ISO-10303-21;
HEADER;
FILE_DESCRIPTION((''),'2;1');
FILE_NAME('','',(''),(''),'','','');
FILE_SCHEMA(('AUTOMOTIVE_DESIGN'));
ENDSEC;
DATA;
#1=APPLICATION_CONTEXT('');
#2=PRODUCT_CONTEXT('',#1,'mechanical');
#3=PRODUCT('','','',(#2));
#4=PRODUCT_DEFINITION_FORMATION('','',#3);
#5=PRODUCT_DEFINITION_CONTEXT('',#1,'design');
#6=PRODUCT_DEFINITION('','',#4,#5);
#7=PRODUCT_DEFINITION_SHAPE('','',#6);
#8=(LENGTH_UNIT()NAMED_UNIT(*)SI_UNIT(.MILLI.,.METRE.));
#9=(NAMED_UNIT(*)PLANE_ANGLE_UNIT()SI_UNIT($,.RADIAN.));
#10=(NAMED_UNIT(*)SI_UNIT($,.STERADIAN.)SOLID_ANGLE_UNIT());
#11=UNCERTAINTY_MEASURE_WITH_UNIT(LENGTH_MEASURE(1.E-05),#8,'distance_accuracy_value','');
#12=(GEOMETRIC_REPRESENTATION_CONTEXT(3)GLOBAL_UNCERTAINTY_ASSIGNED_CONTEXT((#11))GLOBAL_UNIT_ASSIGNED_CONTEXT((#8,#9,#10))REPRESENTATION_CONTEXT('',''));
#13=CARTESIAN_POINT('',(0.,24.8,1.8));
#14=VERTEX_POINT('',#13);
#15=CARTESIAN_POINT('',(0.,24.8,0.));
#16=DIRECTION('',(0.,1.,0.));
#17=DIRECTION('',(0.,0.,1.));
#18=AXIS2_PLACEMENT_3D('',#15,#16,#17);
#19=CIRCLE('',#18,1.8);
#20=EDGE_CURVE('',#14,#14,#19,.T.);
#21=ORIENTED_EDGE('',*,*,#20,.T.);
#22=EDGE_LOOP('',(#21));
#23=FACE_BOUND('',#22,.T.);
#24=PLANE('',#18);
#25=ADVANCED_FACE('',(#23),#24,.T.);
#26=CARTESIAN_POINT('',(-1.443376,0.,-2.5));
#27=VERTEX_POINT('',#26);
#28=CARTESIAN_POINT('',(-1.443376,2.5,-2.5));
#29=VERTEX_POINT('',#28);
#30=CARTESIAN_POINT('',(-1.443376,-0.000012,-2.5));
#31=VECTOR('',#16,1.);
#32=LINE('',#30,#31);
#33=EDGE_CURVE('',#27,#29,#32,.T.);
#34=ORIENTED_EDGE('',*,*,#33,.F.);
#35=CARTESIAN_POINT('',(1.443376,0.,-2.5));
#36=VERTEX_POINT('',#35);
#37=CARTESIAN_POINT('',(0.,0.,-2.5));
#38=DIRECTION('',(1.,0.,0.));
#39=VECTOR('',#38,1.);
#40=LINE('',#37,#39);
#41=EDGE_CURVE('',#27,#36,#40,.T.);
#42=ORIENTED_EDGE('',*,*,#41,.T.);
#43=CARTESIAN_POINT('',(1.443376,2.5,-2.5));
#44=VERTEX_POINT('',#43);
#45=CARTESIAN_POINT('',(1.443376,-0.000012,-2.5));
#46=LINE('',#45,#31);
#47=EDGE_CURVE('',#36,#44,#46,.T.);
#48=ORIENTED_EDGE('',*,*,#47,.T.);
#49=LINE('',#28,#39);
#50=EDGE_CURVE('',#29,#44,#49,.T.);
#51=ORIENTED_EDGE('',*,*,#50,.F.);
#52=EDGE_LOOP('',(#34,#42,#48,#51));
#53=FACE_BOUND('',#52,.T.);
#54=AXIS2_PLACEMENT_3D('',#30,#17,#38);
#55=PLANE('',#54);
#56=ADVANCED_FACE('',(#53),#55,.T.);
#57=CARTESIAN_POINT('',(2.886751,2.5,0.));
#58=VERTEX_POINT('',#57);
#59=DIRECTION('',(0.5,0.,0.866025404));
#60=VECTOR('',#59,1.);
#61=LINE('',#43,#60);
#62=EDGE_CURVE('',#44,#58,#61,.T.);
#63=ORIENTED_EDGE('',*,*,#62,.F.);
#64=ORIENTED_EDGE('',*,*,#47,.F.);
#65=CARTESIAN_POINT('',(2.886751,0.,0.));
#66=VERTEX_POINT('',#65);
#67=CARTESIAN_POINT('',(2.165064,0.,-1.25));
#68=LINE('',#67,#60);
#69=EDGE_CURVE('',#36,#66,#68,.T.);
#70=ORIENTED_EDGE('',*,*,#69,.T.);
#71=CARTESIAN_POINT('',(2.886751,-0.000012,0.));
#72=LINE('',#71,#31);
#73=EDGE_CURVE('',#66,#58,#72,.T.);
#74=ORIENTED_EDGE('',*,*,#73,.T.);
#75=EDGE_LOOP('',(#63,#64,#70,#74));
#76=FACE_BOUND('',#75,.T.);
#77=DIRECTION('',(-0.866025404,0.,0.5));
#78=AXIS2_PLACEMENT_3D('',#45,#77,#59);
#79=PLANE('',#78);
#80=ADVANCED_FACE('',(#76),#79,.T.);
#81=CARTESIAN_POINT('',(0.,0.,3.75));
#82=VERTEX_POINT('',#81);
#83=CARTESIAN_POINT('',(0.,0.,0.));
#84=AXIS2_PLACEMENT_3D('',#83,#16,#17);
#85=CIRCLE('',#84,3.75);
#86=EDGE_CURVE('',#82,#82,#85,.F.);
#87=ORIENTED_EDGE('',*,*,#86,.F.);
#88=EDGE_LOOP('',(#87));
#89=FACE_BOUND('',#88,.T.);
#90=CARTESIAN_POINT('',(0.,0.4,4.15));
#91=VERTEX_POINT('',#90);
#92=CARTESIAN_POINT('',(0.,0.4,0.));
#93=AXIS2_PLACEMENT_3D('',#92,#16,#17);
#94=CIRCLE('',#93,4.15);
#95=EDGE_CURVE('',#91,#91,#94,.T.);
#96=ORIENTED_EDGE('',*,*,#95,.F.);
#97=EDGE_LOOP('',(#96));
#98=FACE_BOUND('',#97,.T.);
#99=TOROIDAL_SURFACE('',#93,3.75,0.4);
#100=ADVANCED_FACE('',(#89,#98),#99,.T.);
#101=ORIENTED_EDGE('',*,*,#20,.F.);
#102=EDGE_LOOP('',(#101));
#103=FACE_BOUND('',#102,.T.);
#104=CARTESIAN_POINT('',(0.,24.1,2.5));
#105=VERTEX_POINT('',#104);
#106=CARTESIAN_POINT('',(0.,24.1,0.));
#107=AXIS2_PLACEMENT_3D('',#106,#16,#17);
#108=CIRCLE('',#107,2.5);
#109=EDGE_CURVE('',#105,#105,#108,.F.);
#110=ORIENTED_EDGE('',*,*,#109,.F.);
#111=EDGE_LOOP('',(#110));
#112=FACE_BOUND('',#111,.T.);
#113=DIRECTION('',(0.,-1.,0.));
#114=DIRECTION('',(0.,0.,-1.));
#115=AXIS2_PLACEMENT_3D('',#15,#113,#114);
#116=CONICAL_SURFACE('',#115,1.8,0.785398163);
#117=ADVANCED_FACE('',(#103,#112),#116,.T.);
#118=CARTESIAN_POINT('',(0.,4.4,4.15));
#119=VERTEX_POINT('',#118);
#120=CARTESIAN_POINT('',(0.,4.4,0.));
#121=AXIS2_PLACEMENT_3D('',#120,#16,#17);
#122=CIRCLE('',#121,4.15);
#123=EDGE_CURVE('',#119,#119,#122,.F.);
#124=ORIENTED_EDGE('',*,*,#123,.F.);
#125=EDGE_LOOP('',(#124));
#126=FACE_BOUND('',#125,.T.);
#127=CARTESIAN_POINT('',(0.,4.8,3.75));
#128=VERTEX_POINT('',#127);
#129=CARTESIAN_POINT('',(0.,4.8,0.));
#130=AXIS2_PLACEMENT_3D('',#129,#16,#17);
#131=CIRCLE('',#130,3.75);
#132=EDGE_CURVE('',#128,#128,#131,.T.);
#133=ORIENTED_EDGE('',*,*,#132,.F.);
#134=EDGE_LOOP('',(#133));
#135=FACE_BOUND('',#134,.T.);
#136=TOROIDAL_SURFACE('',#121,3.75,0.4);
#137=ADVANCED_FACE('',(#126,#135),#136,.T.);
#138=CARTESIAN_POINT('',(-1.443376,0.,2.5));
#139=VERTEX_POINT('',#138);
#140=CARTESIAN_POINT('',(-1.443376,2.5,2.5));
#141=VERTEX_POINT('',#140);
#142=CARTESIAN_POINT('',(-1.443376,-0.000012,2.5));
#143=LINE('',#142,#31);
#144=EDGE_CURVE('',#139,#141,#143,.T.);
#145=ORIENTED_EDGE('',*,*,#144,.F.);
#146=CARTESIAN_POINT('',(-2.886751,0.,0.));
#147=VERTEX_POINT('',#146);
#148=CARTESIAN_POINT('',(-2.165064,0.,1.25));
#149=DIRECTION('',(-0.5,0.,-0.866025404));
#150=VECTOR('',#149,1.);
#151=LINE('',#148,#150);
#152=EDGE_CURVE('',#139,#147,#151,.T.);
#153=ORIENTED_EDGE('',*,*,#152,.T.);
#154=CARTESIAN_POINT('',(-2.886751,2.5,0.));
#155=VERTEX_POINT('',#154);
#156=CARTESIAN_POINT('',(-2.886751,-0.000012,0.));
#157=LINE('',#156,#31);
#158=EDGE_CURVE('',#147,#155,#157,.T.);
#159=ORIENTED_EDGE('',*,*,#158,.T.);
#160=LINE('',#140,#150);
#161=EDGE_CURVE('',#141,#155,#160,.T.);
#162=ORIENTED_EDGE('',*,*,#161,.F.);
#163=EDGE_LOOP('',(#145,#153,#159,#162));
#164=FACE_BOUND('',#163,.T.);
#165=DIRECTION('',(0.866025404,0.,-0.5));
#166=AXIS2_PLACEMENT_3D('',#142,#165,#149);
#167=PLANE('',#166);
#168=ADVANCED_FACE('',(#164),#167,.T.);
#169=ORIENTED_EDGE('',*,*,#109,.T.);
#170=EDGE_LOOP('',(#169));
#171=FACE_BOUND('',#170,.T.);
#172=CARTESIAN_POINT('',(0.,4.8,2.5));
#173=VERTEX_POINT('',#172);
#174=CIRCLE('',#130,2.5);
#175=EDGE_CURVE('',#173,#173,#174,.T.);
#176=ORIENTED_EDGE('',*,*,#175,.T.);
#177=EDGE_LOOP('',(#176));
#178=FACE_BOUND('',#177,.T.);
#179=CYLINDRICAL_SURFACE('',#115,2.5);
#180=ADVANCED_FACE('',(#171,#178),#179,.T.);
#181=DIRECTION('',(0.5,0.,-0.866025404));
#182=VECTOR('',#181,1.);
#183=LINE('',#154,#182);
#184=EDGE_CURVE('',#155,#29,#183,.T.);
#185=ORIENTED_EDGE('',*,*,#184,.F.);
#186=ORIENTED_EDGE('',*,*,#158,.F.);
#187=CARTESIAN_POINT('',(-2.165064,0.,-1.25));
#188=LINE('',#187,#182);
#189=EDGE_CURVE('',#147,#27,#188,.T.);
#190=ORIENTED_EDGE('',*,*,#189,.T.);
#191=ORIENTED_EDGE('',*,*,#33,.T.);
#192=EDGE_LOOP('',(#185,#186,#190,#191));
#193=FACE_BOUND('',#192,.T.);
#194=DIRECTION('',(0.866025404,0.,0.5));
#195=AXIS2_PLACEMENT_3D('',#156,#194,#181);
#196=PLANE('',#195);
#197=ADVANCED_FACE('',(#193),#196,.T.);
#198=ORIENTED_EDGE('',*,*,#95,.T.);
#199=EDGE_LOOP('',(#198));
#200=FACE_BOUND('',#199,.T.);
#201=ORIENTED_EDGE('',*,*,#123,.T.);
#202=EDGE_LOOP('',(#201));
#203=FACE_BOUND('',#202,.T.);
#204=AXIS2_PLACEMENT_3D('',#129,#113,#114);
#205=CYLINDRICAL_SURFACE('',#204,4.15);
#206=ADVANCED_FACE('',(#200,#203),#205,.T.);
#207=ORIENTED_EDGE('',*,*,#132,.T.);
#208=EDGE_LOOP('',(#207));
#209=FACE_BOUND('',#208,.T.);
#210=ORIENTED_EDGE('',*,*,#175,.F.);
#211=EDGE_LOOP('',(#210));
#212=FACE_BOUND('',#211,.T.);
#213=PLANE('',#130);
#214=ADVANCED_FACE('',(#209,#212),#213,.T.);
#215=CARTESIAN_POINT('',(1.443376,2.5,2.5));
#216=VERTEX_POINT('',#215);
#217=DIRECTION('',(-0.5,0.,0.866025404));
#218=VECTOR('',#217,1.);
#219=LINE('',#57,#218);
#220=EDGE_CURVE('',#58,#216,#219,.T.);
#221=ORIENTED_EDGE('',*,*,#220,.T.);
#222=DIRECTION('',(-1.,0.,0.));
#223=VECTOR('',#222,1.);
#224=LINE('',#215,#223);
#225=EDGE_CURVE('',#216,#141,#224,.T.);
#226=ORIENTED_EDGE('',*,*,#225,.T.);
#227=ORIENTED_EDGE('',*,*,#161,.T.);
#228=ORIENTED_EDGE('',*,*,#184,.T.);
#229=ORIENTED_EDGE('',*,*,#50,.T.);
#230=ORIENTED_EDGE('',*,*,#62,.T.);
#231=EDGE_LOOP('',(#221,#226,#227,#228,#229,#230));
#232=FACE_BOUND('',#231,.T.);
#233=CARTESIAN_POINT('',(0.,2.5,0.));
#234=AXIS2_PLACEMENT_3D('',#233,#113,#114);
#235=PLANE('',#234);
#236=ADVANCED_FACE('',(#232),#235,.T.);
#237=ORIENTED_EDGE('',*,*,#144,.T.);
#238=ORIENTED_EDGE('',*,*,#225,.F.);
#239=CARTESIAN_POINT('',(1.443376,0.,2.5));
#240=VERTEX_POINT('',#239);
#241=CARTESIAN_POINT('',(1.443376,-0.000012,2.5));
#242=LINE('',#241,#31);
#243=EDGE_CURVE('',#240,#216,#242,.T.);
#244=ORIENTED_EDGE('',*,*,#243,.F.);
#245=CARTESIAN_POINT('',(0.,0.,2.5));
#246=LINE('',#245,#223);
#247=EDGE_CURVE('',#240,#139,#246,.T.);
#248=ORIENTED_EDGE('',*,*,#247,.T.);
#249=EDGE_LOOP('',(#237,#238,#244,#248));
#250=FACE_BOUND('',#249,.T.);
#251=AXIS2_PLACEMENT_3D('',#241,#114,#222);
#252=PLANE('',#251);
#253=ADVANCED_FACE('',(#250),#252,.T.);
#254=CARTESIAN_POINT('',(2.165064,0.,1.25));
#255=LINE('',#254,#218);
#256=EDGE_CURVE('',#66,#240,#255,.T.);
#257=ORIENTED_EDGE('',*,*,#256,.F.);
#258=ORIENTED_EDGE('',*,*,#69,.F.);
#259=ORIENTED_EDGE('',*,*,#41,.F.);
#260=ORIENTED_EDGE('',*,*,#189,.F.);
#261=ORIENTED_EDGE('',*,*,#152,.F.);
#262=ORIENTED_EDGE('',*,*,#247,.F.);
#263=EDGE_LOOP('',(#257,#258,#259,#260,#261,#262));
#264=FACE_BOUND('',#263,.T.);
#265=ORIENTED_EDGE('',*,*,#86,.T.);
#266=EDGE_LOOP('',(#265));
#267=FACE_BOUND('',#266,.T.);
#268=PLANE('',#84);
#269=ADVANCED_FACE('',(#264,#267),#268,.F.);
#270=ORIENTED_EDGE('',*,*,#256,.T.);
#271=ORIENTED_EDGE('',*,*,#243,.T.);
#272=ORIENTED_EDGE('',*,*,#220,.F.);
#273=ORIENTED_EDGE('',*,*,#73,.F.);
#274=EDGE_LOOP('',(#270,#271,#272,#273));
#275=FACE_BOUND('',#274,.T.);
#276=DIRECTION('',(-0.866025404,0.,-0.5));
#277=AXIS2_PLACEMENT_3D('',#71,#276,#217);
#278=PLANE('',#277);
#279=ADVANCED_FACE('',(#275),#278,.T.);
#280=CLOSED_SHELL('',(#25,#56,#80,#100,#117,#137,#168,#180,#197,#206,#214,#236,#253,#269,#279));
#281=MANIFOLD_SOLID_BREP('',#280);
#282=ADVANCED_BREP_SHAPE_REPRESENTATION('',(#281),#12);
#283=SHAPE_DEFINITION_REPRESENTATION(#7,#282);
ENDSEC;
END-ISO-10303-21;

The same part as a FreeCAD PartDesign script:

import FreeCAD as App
import Part
import Sketcher
Q = App.Units.Quantity


def edges_at(feature, points):
    """Names of the edges that pass closest to the given points."""
    edges = feature.Shape.Edges
    near = lambda p: min(range(len(edges)), key=lambda i: edges[i].distToShape(Part.Vertex(*p))[0])
    return sorted({f"Edge{near(p) + 1}" for p in points})

doc = App.newDocument("Part")
body = doc.addObject("PartDesign::Body", "Body")

# Sketch on XZ plane
sketch1 = body.newObject("Sketcher::SketchObject", "Sketch")
sketch1.AttachmentSupport = (doc.getObject("XZ_Plane"), [""])
sketch1.MapMode = "FlatFace"
sketch1.addGeometry(Part.Circle(App.Vector(0, 0, 0), App.Vector(0, 0, 1), 4.2), False)
sketch1.addConstraint(Sketcher.Constraint("Coincident", 0, 3, -1, 1))
sketch1.addConstraint(Sketcher.Constraint("Diameter", 0, Q("8.3 mm")))
pad1 = body.newObject("PartDesign::Pad", "Pad")
pad1.Profile = sketch1
pad1.Length = 4.8
pad1.Reversed = True

# Sketch on XZ plane
sketch2 = body.newObject("Sketcher::SketchObject", "Sketch001")
sketch2.AttachmentSupport = (doc.getObject("XZ_Plane"), [""])
sketch2.MapMode = "FlatFace"
sketch2.AttachmentOffset = App.Placement(App.Vector(0, 0, -4.8), App.Rotation())
sketch2.addGeometry(Part.Circle(App.Vector(0, 0, 0), App.Vector(0, 0, 1), 2.5), False)
sketch2.addConstraint(Sketcher.Constraint("Coincident", 0, 3, -1, 1))
sketch2.addConstraint(Sketcher.Constraint("Diameter", 0, Q("5 mm")))
pad2 = body.newObject("PartDesign::Pad", "Pad001")
pad2.Profile = sketch2
pad2.Length = 20
pad2.Reversed = True

# Sketch on XZ plane
sketch3 = body.newObject("Sketcher::SketchObject", "Sketch002")
sketch3.AttachmentSupport = (doc.getObject("XZ_Plane"), [""])
sketch3.MapMode = "FlatFace"
sketch3.addGeometry(Part.LineSegment(App.Vector(2.9, 0, 0), App.Vector(1.4, 2.5, 0)), False)
sketch3.addGeometry(Part.LineSegment(App.Vector(1.4, 2.5, 0), App.Vector(-1.4, 2.5, 0)), False)
sketch3.addGeometry(Part.LineSegment(App.Vector(-1.4, 2.5, 0), App.Vector(-2.9, 0, 0)), False)
sketch3.addGeometry(Part.LineSegment(App.Vector(-2.9, 0, 0), App.Vector(-1.4, -2.5, 0)), False)
sketch3.addGeometry(Part.LineSegment(App.Vector(-1.4, -2.5, 0), App.Vector(1.4, -2.5, 0)), False)
sketch3.addGeometry(Part.LineSegment(App.Vector(1.4, -2.5, 0), App.Vector(2.9, 0, 0)), False)
sketch3.addConstraint(Sketcher.Constraint("Coincident", 0, 2, 1, 1))
sketch3.addConstraint(Sketcher.Constraint("Coincident", 1, 2, 2, 1))
sketch3.addConstraint(Sketcher.Constraint("Coincident", 2, 2, 3, 1))
sketch3.addConstraint(Sketcher.Constraint("Coincident", 3, 2, 4, 1))
sketch3.addConstraint(Sketcher.Constraint("Coincident", 4, 2, 5, 1))
sketch3.addConstraint(Sketcher.Constraint("Coincident", 5, 2, 0, 1))
sketch3.addConstraint(Sketcher.Constraint("Horizontal", 1))
sketch3.addConstraint(Sketcher.Constraint("Horizontal", 4))
sketch3.addConstraint(Sketcher.Constraint("Symmetric", 0, 2, 3, 2, -1, 1))
sketch3.addConstraint(Sketcher.Constraint("Symmetric", 2, 2, 5, 2, -1, 1))
sketch3.addConstraint(Sketcher.Constraint("PointOnObject", 2, 2, -1))
sketch3.addConstraint(Sketcher.Constraint("Parallel", 2, 5))
sketch3.addConstraint(Sketcher.Constraint("Vertical", 1, 2, 3, 2))
sketch3.addConstraint(Sketcher.Constraint("Angle", 0, Q("120 deg")))
sketch3.addConstraint(Sketcher.Constraint("DistanceY", 3, 2, 1, 2, Q("5 mm")))
sketch3.addConstraint(Sketcher.Constraint("DistanceX", 1, 2, 1, 1, Q("2.886751 mm")))
pocket1 = body.newObject("PartDesign::Pocket", "Pocket")
pocket1.Profile = sketch3
pocket1.Type = "TwoLengths"
pocket1.Length = 26.484996
pocket1.Length2 = 2.5
pocket1.Reversed = True
doc.recompute()

chamfer = body.newObject("PartDesign::Chamfer", "Chamfer")
chamfer.Base = (pocket1, edges_at(pocket1, [(0, 24.8, -2.5)]))
chamfer.Size = 0.7
doc.recompute()

fillet = body.newObject("PartDesign::Fillet", "Fillet")
fillet.Base = (chamfer, edges_at(chamfer, [(0, 0, -4.15), (0, 4.8, -4.15)]))
fillet.Radius = 0.4

doc.recompute()
